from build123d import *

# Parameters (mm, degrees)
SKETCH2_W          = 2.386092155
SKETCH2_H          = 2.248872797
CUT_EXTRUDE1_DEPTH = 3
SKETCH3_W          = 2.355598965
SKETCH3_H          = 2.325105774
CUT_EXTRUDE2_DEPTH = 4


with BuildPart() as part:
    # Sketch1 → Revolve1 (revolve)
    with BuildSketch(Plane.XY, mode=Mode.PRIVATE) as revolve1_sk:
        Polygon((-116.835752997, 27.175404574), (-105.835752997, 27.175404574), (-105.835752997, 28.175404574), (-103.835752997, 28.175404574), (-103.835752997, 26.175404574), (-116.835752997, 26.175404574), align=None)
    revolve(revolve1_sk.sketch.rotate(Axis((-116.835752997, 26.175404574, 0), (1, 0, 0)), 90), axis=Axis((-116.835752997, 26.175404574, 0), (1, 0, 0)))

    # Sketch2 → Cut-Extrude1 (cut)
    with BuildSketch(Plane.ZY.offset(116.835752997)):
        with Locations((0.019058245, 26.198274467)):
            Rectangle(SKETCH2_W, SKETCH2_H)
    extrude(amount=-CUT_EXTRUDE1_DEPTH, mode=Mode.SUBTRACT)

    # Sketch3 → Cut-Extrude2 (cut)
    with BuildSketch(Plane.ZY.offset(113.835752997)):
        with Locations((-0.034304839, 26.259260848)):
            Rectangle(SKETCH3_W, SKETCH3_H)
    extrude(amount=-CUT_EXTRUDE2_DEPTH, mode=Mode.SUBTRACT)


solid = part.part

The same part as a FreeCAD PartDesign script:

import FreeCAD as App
import Part
import Sketcher
from FreeCAD import Vector
Q = App.Units.Quantity

doc = App.newDocument("Part")
body = doc.addObject("PartDesign::Body", "Body")

sketch1 = body.newObject("Sketcher::SketchObject", "Sketch")
sketch1.AttachmentSupport = (doc.getObject("XY_Plane"), [""])
sketch1.MapMode = "FlatFace"
sketch1.addGeometry(Part.LineSegment(Vector(-105.835753, 27.175405, 0), Vector(-116.835753, 27.175405, 0)), False)
sketch1.addGeometry(Part.LineSegment(Vector(-116.835753, 27.175405, 0), Vector(-116.835753, 26.175405, 0)), False)
sketch1.addGeometry(Part.LineSegment(Vector(-116.835753, 26.175405, 0), Vector(-103.835753, 26.175405, 0)), False)
sketch1.addGeometry(Part.LineSegment(Vector(-103.835753, 26.175405, 0), Vector(-103.835753, 28.175405, 0)), False)
sketch1.addGeometry(Part.LineSegment(Vector(-103.835753, 28.175405, 0), Vector(-105.835753, 28.175405, 0)), False)
sketch1.addGeometry(Part.LineSegment(Vector(-105.835753, 28.175405, 0), Vector(-105.835753, 27.175405, 0)), False)
sketch1.addGeometry(Part.LineSegment(Vector(-116.835753, 26.175405, 0), Vector(-103.835753, 26.175405, 0)), True)
sketch1.addConstraint(Sketcher.Constraint("Coincident", 0, 2, 1, 1))
sketch1.addConstraint(Sketcher.Constraint("Coincident", 1, 2, 2, 1))
sketch1.addConstraint(Sketcher.Constraint("Coincident", 2, 2, 3, 1))
sketch1.addConstraint(Sketcher.Constraint("Coincident", 3, 2, 4, 1))
sketch1.addConstraint(Sketcher.Constraint("Coincident", 4, 2, 5, 1))
sketch1.addConstraint(Sketcher.Constraint("Coincident", 5, 2, 0, 1))
sketch1.addConstraint(Sketcher.Constraint("Horizontal", 0))
sketch1.addConstraint(Sketcher.Constraint("Vertical", 1))
sketch1.addConstraint(Sketcher.Constraint("Horizontal", 2))
sketch1.addConstraint(Sketcher.Constraint("Vertical", 3))
sketch1.addConstraint(Sketcher.Constraint("Horizontal", 4))
sketch1.addConstraint(Sketcher.Constraint("Vertical", 5))
sketch1.addConstraint(Sketcher.Constraint("Horizontal", 6))
sketch1.addConstraint(Sketcher.Constraint("Coincident", 6, 1, 1, 2))
sketch1.addConstraint(Sketcher.Constraint("Vertical", 3, 2, 6, 2))
sketch1.addConstraint(Sketcher.Constraint("Equal", 4, 3))
sketch1.addConstraint(Sketcher.Constraint("Equal", 1, 5))
sketch1.addConstraint(Sketcher.Constraint("DistanceX", 0, 2, 0, 1, Q("11 mm")))
sketch1.addConstraint(Sketcher.Constraint("DistanceX", 2, 1, 2, 2, Q("13 mm")))
sketch1.addConstraint(Sketcher.Constraint("DistanceX", 0, 2, -1, 1, Q("116.835753 mm")))
sketch1.addConstraint(Sketcher.Constraint("DistanceY", -1, 1, 0, 2, Q("27.175405 mm")))
revolution = body.newObject("PartDesign::Revolution", "Revolution")
revolution.Profile = sketch1
revolution.ReferenceAxis = (sketch1, ["Axis0"])
revolution.Angle = 360

sketch2 = body.newObject("Sketcher::SketchObject", "Sketch001")
sketch2.AttachmentSupport = (doc.getObject("YZ_Plane"), [""])
sketch2.MapMode = "FlatFace"
sketch2.AttachmentOffset = App.Placement(Vector(0, 0, -116.835753), App.Rotation())
sketch2.addGeometry(Part.LineSegment(Vector(27.322711, -1.173988, 0), Vector(25.073838, -1.173988, 0)), False)
sketch2.addGeometry(Part.LineSegment(Vector(25.073838, -1.173988, 0), Vector(25.073838, 1.212104, 0)), False)
sketch2.addGeometry(Part.LineSegment(Vector(25.073838, 1.212104, 0), Vector(27.322711, 1.212104, 0)), False)
sketch2.addGeometry(Part.LineSegment(Vector(27.322711, 1.212104, 0), Vector(27.322711, -1.173988, 0)), False)
sketch2.addConstraint(Sketcher.Constraint("Coincident", 0, 2, 1, 1))
sketch2.addConstraint(Sketcher.Constraint("Coincident", 1, 2, 2, 1))
sketch2.addConstraint(Sketcher.Constraint("Coincident", 2, 2, 3, 1))
sketch2.addConstraint(Sketcher.Constraint("Coincident", 3, 2, 0, 1))
sketch2.addConstraint(Sketcher.Constraint("Horizontal", 0))
sketch2.addConstraint(Sketcher.Constraint("Vertical", 1))
sketch2.addConstraint(Sketcher.Constraint("Horizontal", 2))
sketch2.addConstraint(Sketcher.Constraint("Vertical", 3))
sketch2.addConstraint(Sketcher.Constraint("DistanceX", 0, 2, 0, 1, Q("2.248873 mm")))
sketch2.addConstraint(Sketcher.Constraint("DistanceY", 1, 1, 1, 2, Q("2.386092 mm")))
sketch2.addConstraint(Sketcher.Constraint("DistanceX", -1, 1, 0, 2, Q("25.073838 mm")))
sketch2.addConstraint(Sketcher.Constraint("DistanceY", 0, 2, -1, 1, Q("1.173988 mm")))
pocket1 = body.newObject("PartDesign::Pocket", "Pocket")
pocket1.Profile = sketch2
pocket1.Length = 3
pocket1.Reversed = True

sketch3 = body.newObject("Sketcher::SketchObject", "Sketch002")
sketch3.AttachmentSupport = (doc.getObject("YZ_Plane"), [""])
sketch3.MapMode = "FlatFace"
sketch3.AttachmentOffset = App.Placement(Vector(0, 0, -113.835753), App.Rotation())
sketch3.addGeometry(Part.LineSegment(Vector(27.421814, -1.212104, 0), Vector(25.096708, -1.212104, 0)), False)
sketch3.addGeometry(Part.LineSegment(Vector(25.096708, -1.212104, 0), Vector(25.096708, 1.143495, 0)), False)
sketch3.addGeometry(Part.LineSegment(Vector(25.096708, 1.143495, 0), Vector(27.421814, 1.143495, 0)), False)
sketch3.addGeometry(Part.LineSegment(Vector(27.421814, 1.143495, 0), Vector(27.421814, -1.212104, 0)), False)
sketch3.addConstraint(Sketcher.Constraint("Coincident", 0, 2, 1, 1))
sketch3.addConstraint(Sketcher.Constraint("Coincident", 1, 2, 2, 1))
sketch3.addConstraint(Sketcher.Constraint("Coincident", 2, 2, 3, 1))
sketch3.addConstraint(Sketcher.Constraint("Coincident", 3, 2, 0, 1))
sketch3.addConstraint(Sketcher.Constraint("Horizontal", 0))
sketch3.addConstraint(Sketcher.Constraint("Vertical", 1))
sketch3.addConstraint(Sketcher.Constraint("Horizontal", 2))
sketch3.addConstraint(Sketcher.Constraint("Vertical", 3))
sketch3.addConstraint(Sketcher.Constraint("DistanceY", 1, 1, 1, 2, Q("2.355599 mm")))
sketch3.addConstraint(Sketcher.Constraint("DistanceX", 0, 2, 0, 1, Q("2.325106 mm")))
sketch3.addConstraint(Sketcher.Constraint("DistanceX", -1, 1, 0, 2, Q("25.096708 mm")))
sketch3.addConstraint(Sketcher.Constraint("DistanceY", 0, 2, -1, 1, Q("1.212104 mm")))
pocket2 = body.newObject("PartDesign::Pocket", "Pocket001")
pocket2.Profile = sketch3
pocket2.Length = 4
pocket2.Reversed = True

doc.recompute()
